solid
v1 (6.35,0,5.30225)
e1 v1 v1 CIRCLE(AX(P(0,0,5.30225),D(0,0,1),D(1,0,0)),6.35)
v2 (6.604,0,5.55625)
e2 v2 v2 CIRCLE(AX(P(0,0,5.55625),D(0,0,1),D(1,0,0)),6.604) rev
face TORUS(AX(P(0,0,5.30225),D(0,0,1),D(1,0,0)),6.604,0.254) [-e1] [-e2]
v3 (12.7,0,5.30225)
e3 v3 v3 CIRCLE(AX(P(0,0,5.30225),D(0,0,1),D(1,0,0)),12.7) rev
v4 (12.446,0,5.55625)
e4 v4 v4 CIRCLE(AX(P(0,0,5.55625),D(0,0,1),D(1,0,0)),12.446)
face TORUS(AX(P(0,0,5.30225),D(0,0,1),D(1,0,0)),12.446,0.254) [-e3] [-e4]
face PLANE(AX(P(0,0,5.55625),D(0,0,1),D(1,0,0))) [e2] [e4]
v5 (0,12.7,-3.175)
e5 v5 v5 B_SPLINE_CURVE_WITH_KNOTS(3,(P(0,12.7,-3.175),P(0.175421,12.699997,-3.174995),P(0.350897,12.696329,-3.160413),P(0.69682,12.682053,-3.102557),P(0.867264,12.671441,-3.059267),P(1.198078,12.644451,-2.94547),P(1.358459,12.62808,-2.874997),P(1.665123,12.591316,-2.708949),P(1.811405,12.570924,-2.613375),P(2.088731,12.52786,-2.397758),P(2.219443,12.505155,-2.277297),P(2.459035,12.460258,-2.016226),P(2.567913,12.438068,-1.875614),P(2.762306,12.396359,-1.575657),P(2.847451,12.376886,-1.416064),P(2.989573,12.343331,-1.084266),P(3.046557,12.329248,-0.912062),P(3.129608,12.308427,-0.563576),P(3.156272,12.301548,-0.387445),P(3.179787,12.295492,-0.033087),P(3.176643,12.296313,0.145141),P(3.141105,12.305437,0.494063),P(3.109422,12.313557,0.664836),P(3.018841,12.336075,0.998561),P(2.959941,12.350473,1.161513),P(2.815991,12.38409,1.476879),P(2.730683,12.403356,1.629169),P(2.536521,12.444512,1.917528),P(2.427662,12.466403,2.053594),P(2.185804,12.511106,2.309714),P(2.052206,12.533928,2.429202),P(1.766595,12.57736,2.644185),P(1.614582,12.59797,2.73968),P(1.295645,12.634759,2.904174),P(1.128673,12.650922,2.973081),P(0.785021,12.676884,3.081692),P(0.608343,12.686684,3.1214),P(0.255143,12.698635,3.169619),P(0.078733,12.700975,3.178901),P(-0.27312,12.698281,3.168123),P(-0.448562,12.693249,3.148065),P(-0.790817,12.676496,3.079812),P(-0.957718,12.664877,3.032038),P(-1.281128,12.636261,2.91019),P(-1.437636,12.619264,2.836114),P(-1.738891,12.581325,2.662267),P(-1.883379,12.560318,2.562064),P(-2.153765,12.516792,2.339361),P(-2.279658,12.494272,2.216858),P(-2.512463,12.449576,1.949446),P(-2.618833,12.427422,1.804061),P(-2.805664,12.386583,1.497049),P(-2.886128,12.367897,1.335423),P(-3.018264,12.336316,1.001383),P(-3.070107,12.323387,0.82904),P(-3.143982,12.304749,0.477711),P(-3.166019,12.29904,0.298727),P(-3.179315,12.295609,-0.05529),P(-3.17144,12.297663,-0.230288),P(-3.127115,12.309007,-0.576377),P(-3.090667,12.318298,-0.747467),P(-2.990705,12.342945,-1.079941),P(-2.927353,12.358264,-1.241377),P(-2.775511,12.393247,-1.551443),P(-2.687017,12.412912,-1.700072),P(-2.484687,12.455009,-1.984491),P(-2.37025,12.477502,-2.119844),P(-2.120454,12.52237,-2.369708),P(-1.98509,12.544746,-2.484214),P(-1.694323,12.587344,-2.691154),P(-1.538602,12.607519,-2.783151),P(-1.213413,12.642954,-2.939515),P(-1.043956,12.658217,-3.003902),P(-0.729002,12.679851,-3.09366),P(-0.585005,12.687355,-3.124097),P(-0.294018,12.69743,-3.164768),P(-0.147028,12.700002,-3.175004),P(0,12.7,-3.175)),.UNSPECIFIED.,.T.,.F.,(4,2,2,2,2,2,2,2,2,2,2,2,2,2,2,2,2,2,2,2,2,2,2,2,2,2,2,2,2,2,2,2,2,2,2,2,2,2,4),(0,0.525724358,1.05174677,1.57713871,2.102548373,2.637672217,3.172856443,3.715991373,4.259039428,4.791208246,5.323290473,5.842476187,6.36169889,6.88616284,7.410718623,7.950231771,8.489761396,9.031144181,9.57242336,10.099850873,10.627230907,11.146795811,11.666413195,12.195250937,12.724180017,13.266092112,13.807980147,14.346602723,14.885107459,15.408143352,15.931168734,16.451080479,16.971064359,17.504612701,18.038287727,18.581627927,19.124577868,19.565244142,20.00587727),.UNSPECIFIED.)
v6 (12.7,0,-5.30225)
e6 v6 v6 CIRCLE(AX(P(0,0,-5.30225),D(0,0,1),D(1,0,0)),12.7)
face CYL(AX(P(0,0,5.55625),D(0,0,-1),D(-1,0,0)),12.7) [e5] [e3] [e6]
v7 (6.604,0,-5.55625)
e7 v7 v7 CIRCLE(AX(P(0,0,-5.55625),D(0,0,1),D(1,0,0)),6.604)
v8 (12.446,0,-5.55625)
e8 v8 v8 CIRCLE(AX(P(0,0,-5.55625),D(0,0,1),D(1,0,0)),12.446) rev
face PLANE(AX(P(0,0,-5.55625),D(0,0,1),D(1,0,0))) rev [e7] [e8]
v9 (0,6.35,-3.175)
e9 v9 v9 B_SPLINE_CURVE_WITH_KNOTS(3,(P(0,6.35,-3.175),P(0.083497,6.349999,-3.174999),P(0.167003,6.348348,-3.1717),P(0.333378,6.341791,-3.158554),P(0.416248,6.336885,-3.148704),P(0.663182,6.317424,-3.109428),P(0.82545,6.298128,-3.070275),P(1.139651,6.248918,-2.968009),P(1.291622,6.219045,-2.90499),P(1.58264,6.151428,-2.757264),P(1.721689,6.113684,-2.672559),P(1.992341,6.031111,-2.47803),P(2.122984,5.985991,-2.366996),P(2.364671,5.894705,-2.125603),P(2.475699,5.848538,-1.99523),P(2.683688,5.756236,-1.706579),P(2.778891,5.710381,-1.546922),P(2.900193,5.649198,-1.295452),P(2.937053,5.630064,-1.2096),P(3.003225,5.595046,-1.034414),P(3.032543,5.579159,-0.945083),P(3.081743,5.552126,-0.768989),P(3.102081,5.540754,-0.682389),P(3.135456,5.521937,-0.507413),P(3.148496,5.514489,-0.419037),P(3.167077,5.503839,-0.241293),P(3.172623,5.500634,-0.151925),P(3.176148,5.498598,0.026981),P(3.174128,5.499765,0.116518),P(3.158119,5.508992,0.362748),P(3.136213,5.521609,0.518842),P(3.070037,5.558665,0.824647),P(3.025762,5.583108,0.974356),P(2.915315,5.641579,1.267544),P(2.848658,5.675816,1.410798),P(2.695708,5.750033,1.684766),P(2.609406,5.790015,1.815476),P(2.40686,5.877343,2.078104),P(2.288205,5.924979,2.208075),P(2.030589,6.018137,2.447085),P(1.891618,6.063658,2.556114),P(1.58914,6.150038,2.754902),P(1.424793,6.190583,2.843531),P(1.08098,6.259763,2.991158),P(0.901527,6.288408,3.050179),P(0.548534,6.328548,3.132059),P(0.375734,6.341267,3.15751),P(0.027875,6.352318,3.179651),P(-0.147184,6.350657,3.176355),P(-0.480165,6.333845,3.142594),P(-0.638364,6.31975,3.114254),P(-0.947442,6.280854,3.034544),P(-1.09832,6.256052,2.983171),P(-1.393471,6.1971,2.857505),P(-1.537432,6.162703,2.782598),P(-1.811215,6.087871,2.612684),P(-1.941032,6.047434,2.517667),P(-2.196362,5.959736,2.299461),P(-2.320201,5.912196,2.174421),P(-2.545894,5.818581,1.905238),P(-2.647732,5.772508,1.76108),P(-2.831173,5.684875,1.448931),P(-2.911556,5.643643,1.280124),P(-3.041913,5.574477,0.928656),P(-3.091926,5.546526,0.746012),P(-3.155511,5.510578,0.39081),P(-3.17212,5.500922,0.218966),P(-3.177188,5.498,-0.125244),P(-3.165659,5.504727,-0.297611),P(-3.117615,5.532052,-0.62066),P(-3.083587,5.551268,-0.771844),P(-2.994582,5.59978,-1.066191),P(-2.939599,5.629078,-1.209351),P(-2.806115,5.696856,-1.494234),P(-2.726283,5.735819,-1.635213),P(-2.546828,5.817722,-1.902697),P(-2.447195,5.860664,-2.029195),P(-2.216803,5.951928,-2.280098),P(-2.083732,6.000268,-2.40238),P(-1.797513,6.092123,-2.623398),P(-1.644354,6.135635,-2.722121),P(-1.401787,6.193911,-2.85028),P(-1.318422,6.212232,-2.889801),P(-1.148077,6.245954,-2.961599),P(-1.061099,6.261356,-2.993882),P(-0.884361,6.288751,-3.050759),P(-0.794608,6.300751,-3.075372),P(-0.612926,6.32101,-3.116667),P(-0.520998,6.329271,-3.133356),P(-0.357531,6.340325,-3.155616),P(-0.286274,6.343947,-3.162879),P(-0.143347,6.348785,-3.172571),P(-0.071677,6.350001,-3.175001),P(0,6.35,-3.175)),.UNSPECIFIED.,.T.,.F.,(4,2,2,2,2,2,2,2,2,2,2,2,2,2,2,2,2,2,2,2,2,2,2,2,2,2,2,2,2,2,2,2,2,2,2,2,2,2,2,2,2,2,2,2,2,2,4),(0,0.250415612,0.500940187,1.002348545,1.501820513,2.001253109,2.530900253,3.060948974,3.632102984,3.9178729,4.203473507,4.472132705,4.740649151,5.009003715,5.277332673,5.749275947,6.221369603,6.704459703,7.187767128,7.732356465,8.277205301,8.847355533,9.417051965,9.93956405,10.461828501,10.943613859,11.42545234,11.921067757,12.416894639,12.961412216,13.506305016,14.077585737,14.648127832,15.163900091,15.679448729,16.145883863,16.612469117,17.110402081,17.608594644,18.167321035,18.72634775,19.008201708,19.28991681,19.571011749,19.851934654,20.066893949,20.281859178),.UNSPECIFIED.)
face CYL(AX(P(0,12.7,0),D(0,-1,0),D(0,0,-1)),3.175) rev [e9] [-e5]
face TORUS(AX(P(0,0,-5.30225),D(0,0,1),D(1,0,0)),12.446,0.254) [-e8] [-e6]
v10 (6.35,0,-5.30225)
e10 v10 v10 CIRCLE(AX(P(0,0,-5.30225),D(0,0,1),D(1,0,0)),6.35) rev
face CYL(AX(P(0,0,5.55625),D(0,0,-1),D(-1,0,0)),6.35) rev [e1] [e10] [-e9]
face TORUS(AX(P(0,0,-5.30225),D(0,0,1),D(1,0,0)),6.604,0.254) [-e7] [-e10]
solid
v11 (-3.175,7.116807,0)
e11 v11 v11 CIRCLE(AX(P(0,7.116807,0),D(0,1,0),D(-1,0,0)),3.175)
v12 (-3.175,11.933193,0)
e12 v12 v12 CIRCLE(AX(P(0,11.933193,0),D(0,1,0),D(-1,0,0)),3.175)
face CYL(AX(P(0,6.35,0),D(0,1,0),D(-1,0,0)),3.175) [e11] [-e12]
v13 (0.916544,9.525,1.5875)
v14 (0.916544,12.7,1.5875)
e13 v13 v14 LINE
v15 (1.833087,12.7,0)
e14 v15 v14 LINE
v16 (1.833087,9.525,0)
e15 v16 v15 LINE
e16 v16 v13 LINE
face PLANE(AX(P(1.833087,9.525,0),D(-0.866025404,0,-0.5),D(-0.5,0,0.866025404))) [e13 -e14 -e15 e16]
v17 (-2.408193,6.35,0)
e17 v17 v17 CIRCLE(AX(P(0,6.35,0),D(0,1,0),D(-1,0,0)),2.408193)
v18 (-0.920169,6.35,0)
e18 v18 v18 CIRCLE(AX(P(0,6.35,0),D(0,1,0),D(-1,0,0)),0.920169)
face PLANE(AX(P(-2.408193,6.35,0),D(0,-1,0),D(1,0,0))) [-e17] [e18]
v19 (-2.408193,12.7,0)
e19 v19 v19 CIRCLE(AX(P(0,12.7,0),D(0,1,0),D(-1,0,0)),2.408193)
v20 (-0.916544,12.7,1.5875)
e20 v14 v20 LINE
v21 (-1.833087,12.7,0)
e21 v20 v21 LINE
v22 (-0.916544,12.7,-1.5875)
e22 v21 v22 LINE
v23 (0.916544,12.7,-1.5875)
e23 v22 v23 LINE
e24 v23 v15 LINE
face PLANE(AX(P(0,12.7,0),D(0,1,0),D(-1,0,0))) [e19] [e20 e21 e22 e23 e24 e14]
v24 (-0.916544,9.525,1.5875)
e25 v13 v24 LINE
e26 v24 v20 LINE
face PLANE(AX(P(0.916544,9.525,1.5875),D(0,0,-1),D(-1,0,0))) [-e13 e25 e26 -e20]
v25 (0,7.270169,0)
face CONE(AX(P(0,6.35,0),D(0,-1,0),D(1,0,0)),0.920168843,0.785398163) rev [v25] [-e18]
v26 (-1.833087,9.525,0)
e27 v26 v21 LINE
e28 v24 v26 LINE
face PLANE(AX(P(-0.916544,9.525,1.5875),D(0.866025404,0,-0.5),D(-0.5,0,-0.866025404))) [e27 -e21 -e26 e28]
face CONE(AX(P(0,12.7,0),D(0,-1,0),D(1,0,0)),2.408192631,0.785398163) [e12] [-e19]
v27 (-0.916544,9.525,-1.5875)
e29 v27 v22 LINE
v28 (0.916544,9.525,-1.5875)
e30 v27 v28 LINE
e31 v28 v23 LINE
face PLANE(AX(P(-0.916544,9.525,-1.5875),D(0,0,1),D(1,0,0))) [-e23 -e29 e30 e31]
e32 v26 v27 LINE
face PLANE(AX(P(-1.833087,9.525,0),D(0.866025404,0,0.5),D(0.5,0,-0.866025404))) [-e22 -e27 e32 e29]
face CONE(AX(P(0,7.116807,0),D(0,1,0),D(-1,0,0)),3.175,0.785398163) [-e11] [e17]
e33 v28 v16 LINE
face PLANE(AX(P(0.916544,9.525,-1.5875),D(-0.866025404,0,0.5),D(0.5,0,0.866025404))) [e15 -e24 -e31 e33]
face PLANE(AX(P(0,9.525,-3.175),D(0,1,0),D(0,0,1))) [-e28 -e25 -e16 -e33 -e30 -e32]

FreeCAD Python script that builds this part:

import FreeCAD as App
import Part
import Sketcher
Q = App.Units.Quantity


def edges_at(feature, points):
    """Names of the edges that pass closest to the given points."""
    edges = feature.Shape.Edges
    near = lambda p: min(range(len(edges)), key=lambda i: edges[i].distToShape(Part.Vertex(*p))[0])
    return sorted({f"Edge{near(p) + 1}" for p in points})

doc = App.newDocument("Part")
body = doc.addObject("PartDesign::Body", "Body")

sketch1 = body.newObject("Sketcher::SketchObject", "Sketch")
sketch1.AttachmentSupport = (doc.getObject("XY_Plane"), [""])
sketch1.MapMode = "FlatFace"
sketch1.addGeometry(Part.Circle(App.Vector(0, 0, 0), App.Vector(0, 0, 1), 13), False)
sketch1.addGeometry(Part.Circle(App.Vector(0, 0, 0), App.Vector(0, 0, 1), 6), False)
sketch1.addConstraint(Sketcher.Constraint("Coincident", 0, 3, -1, 1))
sketch1.addConstraint(Sketcher.Constraint("Coincident", 1, 3, -1, 1))
sketch1.addConstraint(Sketcher.Constraint("Diameter", 0, Q("1 in")))
sketch1.addConstraint(Sketcher.Constraint("Diameter", 1, Q("0.5 in")))
pad1 = body.newObject("PartDesign::Pad", "Pad")
pad1.Profile = sketch1
pad1.Length = Q("0.4375 in")
pad1.Midplane = True

sketch2 = body.newObject("Sketcher::SketchObject", "Sketch001")
sketch2.AttachmentSupport = (doc.getObject("XZ_Plane"), [""])
sketch2.MapMode = "FlatFace"
sketch2.addGeometry(Part.Circle(App.Vector(0, 0, 0), App.Vector(0, 0, 1), 3.2), False)
sketch2.addConstraint(Sketcher.Constraint("Coincident", 0, 3, -1, 1))
sketch2.addConstraint(Sketcher.Constraint("Diameter", 0, Q("0.25 in")))
pocket1 = body.newObject("PartDesign::Pocket", "Pocket")
pocket1.Profile = sketch2
pocket1.Type = "ThroughAll"
doc.recompute()

fillet = body.newObject("PartDesign::Fillet", "Fillet")
fillet.Base = (pocket1, edges_at(pocket1, [
    (-12.7, 0, -5.556),
    (-12.7, 0, 5.556),
    (-6.35, 0, -5.556),
    (-6.35, 0, 5.556),
]))
fillet.Radius = Q("0.01 in")
body2 = doc.addObject("PartDesign::Body", "Body001")

sketch3 = body2.newObject("Sketcher::SketchObject", "Sketch002")
sketch3.AttachmentSupport = (doc.getObject("XY_Plane001"), [""])
sketch3.MapMode = "FlatFace"
sketch3.addGeometry(Part.LineSegment(App.Vector(-2.4, 6.3, 0), App.Vector(-0.9, 6.3, 0)), False)
sketch3.addGeometry(Part.LineSegment(App.Vector(-0.9, 6.3, 0), App.Vector(0, 7.3, 0)), False)
sketch3.addGeometry(Part.LineSegment(App.Vector(0, 7.3, 0), App.Vector(0, 12.7, 0)), False)
sketch3.addGeometry(Part.LineSegment(App.Vector(0, 12.7, 0), App.Vector(-2.4, 12.7, 0)), False)
sketch3.addGeometry(Part.LineSegment(App.Vector(-2.4, 12.7, 0), App.Vector(-3.2, 11.9, 0)), False)
sketch3.addGeometry(Part.LineSegment(App.Vector(-3.2, 11.9, 0), App.Vector(-3.2, 7.1, 0)), False)
sketch3.addGeometry(Part.LineSegment(App.Vector(-3.2, 7.1, 0), App.Vector(-2.4, 6.3, 0)), False)
sketch3.addConstraint(Sketcher.Constraint("Coincident", 0, 2, 1, 1))
sketch3.addConstraint(Sketcher.Constraint("Coincident", 1, 2, 2, 1))
sketch3.addConstraint(Sketcher.Constraint("Coincident", 2, 2, 3, 1))
sketch3.addConstraint(Sketcher.Constraint("Coincident", 3, 2, 4, 1))
sketch3.addConstraint(Sketcher.Constraint("Coincident", 4, 2, 5, 1))
sketch3.addConstraint(Sketcher.Constraint("Coincident", 5, 2, 6, 1))
sketch3.addConstraint(Sketcher.Constraint("Coincident", 6, 2, 0, 1))
sketch3.addConstraint(Sketcher.Constraint("Horizontal", 0))
sketch3.addConstraint(Sketcher.Constraint("Vertical", 2))
sketch3.addConstraint(Sketcher.Constraint("Horizontal", 3))
sketch3.addConstraint(Sketcher.Constraint("Vertical", 5))
sketch3.addConstraint(Sketcher.Constraint("PointOnObject", 1, 2, -2))
sketch3.addConstraint(Sketcher.Constraint("Parallel", 1, 4))
sketch3.addConstraint(Sketcher.Constraint("Perpendicular", 4, 6))
sketch3.addConstraint(Sketcher.Constraint("Vertical", 3, 2, 6, 2))
sketch3.addConstraint(Sketcher.Constraint("Equal", 4, 6))
sketch3.addConstraint(Sketcher.Constraint("DistanceY", -1, 1, 2, 2, Q("0.5 in")))
sketch3.addConstraint(Sketcher.Constraint("DistanceY", -1, 1, 0, 2, Q("0.25 in")))
sketch3.addConstraint(Sketcher.Constraint("DistanceX", 4, 2, -1, 1, Q("0.125 in")))
sketch3.addConstraint(Sketcher.Constraint("DistanceY", 2, 1, 2, 2, Q("5.429831 mm")))
sketch3.addConstraint(Sketcher.Constraint("Distance", 4, Q("1.084429 mm")))
revolution = body2.newObject("PartDesign::Revolution", "Revolution")
revolution.Profile = sketch3
revolution.ReferenceAxis = (sketch3, ["V_Axis"])
revolution.Angle = 360

sketch4 = body2.newObject("Sketcher::SketchObject", "Sketch003")
sketch4.AttachmentSupport = (doc.getObject("XZ_Plane001"), [""])
sketch4.MapMode = "FlatFace"
sketch4.AttachmentOffset = App.Placement(App.Vector(0, 0, -0.5 * 25.4), App.Rotation())
sketch4.addGeometry(Part.LineSegment(App.Vector(1.8, 0, 0), App.Vector(0.9, 1.6, 0)), False)
sketch4.addGeometry(Part.LineSegment(App.Vector(0.9, 1.6, 0), App.Vector(-0.9, 1.6, 0)), False)
sketch4.addGeometry(Part.LineSegment(App.Vector(-0.9, 1.6, 0), App.Vector(-1.8, 0, 0)), False)
sketch4.addGeometry(Part.LineSegment(App.Vector(-1.8, 0, 0), App.Vector(-0.9, -1.6, 0)), False)
sketch4.addGeometry(Part.LineSegment(App.Vector(-0.9, -1.6, 0), App.Vector(0.9, -1.6, 0)), False)
sketch4.addGeometry(Part.LineSegment(App.Vector(0.9, -1.6, 0), App.Vector(1.8, 0, 0)), False)
sketch4.addConstraint(Sketcher.Constraint("Coincident", 0, 2, 1, 1))
sketch4.addConstraint(Sketcher.Constraint("Coincident", 1, 2, 2, 1))
sketch4.addConstraint(Sketcher.Constraint("Coincident", 2, 2, 3, 1))
sketch4.addConstraint(Sketcher.Constraint("Coincident", 3, 2, 4, 1))
sketch4.addConstraint(Sketcher.Constraint("Coincident", 4, 2, 5, 1))
sketch4.addConstraint(Sketcher.Constraint("Coincident", 5, 2, 0, 1))
sketch4.addConstraint(Sketcher.Constraint("Horizontal", 1))
sketch4.addConstraint(Sketcher.Constraint("Horizontal", 4))
sketch4.addConstraint(Sketcher.Constraint("Symmetric", 0, 2, 3, 2, -1, 1))
sketch4.addConstraint(Sketcher.Constraint("Symmetric", 2, 2, 5, 2, -1, 1))
sketch4.addConstraint(Sketcher.Constraint("PointOnObject", 2, 2, -1))
sketch4.addConstraint(Sketcher.Constraint("Parallel", 2, 5))
sketch4.addConstraint(Sketcher.Constraint("Vertical", 1, 2, 3, 2))
sketch4.addConstraint(Sketcher.Constraint("Angle", 0, Q("120 deg")))
sketch4.addConstraint(Sketcher.Constraint("DistanceY", -1, 1, 0, 2, Q("0.0625 in")))
sketch4.addConstraint(Sketcher.Constraint("DistanceX", 1, 2, 1, 1, Q("1.833087 mm")))
pocket2 = body2.newObject("PartDesign::Pocket", "Pocket001")
pocket2.Profile = sketch4
pocket2.Length = Q("0.125 in")
pocket2.Reversed = True

doc.recompute()
